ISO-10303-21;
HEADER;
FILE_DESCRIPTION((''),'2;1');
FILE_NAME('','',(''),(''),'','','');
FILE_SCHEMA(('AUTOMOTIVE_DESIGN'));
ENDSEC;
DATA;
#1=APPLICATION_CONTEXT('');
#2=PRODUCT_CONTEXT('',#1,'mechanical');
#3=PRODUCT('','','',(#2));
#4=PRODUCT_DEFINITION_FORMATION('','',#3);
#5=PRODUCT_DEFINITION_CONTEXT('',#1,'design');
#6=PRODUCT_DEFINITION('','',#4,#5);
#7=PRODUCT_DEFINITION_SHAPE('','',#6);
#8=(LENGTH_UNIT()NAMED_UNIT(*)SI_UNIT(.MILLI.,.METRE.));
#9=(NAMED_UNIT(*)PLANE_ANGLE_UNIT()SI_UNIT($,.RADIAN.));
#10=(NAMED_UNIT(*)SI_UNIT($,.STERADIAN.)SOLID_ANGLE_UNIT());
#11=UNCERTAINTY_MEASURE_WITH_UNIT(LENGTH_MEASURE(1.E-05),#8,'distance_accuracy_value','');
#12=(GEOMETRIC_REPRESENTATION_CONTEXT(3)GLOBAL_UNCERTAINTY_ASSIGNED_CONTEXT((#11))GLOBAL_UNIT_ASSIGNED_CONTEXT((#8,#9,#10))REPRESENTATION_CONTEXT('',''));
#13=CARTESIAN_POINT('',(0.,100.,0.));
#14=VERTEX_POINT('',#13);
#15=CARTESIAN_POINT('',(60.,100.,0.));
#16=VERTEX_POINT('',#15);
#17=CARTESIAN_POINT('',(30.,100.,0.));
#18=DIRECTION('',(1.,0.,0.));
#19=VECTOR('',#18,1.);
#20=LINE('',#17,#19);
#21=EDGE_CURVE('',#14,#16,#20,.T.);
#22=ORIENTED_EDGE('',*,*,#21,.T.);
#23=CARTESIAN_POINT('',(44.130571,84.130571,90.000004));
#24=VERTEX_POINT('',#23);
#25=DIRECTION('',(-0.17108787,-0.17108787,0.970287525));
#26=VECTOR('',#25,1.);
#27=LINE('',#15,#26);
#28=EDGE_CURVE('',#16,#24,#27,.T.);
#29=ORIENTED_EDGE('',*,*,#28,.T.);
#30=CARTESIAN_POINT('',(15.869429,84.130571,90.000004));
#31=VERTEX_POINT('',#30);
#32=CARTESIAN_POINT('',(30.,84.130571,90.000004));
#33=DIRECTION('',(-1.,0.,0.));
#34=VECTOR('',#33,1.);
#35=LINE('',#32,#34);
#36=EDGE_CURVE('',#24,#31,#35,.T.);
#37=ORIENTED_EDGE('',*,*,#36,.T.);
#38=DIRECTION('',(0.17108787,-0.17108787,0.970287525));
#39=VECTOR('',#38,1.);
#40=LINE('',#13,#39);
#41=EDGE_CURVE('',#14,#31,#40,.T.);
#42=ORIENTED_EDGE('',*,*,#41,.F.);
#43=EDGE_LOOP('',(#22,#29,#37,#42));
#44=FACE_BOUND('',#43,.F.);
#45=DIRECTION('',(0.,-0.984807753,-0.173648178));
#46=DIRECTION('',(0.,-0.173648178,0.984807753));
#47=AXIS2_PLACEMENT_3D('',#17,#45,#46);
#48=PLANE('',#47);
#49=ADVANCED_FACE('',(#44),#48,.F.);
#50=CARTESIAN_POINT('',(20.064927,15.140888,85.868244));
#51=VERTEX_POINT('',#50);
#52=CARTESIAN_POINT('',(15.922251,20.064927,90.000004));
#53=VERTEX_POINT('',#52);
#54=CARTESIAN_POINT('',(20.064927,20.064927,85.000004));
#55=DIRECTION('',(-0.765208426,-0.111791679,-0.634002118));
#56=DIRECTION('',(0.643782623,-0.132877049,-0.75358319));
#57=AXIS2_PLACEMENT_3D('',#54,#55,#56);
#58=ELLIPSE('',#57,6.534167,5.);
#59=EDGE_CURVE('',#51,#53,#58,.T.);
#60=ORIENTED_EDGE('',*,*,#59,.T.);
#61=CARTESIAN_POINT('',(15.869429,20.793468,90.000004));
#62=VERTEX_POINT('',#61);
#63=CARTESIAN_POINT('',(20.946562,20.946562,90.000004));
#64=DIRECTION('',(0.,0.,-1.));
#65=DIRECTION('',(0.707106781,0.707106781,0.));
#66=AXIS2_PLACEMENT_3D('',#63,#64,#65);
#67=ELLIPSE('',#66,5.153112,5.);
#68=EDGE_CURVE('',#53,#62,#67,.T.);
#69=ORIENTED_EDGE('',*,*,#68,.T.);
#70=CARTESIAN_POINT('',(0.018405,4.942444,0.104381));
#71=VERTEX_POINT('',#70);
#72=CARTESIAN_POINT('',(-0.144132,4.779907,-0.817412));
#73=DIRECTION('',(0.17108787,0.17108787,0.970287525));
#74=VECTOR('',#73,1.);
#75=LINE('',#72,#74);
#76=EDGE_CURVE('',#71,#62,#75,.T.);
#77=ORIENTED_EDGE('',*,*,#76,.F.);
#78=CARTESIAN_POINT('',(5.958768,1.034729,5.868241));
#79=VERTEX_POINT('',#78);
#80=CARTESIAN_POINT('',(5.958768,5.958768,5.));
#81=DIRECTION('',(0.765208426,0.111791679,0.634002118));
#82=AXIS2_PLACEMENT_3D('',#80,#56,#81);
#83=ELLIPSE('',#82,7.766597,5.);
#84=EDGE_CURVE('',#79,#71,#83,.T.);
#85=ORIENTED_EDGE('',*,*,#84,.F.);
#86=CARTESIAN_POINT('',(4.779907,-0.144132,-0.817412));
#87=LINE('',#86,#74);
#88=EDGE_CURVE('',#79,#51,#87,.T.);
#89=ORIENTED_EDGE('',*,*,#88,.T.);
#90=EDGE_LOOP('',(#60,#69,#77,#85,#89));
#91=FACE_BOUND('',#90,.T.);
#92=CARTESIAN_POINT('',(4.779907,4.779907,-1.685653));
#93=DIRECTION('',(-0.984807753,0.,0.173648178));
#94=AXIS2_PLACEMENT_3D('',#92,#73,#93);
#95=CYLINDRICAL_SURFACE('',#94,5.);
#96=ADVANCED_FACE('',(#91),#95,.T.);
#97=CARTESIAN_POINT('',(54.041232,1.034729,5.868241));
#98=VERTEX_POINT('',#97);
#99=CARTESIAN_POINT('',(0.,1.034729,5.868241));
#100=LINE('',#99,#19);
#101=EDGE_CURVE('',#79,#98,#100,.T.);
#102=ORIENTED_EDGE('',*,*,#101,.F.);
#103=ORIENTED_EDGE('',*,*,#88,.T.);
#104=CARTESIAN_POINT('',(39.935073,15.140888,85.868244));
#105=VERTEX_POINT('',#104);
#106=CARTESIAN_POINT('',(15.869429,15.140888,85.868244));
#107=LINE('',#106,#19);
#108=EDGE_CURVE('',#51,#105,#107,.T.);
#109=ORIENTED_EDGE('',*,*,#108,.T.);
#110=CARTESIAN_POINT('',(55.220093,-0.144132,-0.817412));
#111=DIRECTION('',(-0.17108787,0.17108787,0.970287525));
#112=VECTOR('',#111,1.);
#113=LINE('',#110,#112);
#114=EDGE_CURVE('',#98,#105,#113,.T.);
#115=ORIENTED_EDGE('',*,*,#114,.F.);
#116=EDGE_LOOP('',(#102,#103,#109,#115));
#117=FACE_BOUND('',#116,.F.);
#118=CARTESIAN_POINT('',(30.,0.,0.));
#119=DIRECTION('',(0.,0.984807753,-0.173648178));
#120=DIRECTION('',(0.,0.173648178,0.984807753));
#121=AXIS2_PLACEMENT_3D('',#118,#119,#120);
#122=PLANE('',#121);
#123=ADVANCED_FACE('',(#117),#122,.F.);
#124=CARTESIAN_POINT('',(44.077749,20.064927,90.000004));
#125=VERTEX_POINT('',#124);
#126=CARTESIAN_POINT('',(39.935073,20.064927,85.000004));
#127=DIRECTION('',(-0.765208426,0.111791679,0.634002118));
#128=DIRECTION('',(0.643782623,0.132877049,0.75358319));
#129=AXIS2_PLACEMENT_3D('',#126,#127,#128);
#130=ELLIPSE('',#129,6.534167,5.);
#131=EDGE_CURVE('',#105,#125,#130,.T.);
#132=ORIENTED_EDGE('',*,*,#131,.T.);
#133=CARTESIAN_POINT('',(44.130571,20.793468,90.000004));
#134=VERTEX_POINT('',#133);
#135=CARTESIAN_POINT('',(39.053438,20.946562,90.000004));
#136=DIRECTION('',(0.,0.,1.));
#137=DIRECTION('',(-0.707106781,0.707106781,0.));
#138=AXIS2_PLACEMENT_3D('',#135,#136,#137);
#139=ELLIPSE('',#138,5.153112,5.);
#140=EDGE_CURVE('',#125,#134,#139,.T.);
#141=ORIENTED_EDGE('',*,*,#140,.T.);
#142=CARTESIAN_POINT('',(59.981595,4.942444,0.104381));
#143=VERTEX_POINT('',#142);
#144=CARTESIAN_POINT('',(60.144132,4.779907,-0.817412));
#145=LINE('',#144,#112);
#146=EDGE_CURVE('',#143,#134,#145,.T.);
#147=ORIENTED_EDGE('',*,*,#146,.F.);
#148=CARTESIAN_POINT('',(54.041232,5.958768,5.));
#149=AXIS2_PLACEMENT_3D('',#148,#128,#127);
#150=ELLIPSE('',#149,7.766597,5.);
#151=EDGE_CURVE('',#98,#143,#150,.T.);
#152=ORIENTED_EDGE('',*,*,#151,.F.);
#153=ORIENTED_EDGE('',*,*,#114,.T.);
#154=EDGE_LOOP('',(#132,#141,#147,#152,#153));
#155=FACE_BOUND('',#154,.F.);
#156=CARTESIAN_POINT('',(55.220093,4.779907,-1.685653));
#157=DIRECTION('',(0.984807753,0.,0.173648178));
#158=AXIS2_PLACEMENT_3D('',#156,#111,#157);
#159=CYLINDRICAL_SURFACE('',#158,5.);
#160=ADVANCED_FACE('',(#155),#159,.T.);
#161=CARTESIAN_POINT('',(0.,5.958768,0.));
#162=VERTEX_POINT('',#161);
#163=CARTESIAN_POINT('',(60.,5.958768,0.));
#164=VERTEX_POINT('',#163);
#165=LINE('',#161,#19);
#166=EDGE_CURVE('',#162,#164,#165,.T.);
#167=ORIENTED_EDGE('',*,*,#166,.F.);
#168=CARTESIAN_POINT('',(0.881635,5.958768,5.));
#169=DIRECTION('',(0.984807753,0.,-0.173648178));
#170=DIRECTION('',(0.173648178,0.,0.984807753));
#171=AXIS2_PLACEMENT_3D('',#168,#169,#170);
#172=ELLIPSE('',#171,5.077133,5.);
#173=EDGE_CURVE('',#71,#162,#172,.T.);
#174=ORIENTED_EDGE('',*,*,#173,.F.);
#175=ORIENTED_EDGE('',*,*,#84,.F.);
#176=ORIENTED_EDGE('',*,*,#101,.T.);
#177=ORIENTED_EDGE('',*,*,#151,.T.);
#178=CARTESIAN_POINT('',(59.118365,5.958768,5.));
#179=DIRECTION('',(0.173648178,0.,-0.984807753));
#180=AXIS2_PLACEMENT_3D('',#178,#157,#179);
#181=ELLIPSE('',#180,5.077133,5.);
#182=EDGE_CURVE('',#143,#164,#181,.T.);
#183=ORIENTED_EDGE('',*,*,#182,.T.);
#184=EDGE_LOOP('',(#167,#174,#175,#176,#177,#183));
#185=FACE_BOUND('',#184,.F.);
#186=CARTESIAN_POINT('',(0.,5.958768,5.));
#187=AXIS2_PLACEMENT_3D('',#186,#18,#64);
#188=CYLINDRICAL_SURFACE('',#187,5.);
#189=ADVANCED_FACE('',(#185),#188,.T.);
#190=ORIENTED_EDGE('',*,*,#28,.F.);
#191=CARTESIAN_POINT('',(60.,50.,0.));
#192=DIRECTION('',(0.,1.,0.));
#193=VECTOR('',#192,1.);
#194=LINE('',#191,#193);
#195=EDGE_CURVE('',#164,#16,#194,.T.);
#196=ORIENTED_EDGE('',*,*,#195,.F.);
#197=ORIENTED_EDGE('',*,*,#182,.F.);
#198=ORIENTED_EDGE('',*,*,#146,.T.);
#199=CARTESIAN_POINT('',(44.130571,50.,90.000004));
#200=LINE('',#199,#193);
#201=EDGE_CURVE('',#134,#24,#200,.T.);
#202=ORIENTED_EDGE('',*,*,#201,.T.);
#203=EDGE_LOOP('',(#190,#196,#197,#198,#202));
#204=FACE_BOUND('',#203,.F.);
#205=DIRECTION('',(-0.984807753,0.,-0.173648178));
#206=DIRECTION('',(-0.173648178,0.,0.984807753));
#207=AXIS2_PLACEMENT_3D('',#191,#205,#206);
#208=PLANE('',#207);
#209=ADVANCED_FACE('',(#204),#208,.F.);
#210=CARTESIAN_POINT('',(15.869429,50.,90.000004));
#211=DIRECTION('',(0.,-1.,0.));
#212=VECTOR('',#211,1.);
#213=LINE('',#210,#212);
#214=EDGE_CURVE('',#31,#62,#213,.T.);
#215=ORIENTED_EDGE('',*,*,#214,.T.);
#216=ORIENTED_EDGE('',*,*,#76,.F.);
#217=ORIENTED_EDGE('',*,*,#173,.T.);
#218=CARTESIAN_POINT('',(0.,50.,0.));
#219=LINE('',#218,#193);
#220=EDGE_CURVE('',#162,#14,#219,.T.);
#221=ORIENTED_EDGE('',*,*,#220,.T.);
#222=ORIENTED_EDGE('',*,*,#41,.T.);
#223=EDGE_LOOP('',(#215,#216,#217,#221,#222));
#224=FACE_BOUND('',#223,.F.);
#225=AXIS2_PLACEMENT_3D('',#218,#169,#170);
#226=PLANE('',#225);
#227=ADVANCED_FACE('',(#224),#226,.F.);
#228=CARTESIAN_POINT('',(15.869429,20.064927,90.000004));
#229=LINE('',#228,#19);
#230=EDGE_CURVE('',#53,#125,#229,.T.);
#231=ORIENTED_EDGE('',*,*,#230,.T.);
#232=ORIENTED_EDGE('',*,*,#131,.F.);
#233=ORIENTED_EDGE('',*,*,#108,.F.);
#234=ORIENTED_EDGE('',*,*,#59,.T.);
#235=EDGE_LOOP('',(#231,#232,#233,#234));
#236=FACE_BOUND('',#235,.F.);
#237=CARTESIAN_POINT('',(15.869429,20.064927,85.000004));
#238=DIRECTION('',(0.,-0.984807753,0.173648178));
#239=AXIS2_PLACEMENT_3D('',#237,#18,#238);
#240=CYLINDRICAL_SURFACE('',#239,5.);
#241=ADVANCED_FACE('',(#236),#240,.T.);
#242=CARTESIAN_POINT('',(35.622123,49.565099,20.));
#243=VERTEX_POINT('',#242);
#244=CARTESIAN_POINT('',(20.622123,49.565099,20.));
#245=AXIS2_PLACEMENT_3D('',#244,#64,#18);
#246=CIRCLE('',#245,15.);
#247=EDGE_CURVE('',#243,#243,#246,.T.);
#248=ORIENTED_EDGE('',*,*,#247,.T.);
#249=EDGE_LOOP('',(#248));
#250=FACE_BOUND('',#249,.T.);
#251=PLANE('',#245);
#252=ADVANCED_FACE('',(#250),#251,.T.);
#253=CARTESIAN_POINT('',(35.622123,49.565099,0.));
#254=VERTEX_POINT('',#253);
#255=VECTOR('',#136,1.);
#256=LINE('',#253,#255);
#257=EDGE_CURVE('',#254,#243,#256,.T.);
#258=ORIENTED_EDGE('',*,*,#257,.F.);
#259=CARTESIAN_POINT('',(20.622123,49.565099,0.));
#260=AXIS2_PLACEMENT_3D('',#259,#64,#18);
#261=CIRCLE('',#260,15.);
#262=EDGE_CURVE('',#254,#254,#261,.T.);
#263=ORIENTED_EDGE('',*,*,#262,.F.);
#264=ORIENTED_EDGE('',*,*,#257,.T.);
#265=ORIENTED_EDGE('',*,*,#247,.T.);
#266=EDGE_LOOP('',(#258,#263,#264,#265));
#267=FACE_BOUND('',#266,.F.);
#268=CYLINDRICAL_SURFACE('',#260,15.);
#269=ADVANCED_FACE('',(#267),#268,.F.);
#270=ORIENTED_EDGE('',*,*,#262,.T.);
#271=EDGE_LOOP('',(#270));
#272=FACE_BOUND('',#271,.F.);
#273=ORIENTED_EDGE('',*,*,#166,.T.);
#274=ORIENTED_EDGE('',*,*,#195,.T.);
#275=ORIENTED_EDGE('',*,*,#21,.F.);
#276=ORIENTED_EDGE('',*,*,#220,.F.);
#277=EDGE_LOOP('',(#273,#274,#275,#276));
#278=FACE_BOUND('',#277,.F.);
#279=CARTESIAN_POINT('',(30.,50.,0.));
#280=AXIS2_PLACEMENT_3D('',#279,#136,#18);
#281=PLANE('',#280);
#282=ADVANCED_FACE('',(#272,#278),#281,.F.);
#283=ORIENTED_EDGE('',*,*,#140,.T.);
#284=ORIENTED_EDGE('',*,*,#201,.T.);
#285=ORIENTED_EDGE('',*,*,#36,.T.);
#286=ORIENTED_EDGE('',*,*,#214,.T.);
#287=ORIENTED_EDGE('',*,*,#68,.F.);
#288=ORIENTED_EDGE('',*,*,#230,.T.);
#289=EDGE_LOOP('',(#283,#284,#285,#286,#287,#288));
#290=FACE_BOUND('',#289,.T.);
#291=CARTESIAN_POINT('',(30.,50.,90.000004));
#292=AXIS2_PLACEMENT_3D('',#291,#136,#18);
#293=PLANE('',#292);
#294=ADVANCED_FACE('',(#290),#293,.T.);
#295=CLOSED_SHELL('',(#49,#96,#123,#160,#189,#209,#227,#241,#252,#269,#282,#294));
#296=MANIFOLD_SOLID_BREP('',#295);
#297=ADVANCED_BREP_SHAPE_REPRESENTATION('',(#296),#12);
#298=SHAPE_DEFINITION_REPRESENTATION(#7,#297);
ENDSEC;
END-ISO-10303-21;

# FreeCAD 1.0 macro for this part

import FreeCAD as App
import Part
import Sketcher

V = App.Vector
Q = App.Units.Quantity


def edges_at(feature, points):
    """Names of the edges that pass closest to the given points."""
    edges = feature.Shape.Edges
    near = lambda p: min(range(len(edges)), key=lambda i: edges[i].distToShape(Part.Vertex(*p))[0])
    return sorted({f"Edge{near(p) + 1}" for p in points})


def add_polygon(sketch, points):
    """Adds a closed chain of lines whose ends are joined by coincident constraints."""
    first, n = sketch.GeometryCount, len(points)
    for a, b in zip(points, points[1:] + points[:1]):
        sketch.addGeometry(Part.LineSegment(App.Vector(*a, 0), App.Vector(*b, 0)), False)
    for i in range(n):
        sketch.addConstraint(Sketcher.Constraint("Coincident", first + i, 2, first + (i + 1) % n, 1))

doc = App.newDocument("Part")
body = doc.addObject("PartDesign::Body", "Body")

sketch1 = body.newObject("Sketcher::SketchObject", "Sketch")
sketch1.AttachmentSupport = (doc.getObject("XY_Plane"), [""])
sketch1.MapMode = "FlatFace"
add_polygon(sketch1, [(0, 100), (0, 0), (60, 0), (60, 100)])
sketch1.addConstraint([
    Sketcher.Constraint("Vertical", 0),
    Sketcher.Constraint("Horizontal", 1),
    Sketcher.Constraint("Vertical", 2),
    Sketcher.Constraint("Horizontal", 3),
    Sketcher.Constraint("Coincident", 0, 2, -1, 1),
    Sketcher.Constraint("DistanceX", 1, 1, 1, 2, Q("60 mm")),
    Sketcher.Constraint("DistanceY", 0, 2, 0, 1, Q("100 mm")),
])
pad1 = body.newObject("PartDesign::Pad", "Pad")
pad1.Profile = sketch1
pad1.Length = 90.000004
pad1.TaperAngle = -10
doc.recompute()

fillet = body.newObject("PartDesign::Fillet", "Fillet")
fillet.Base = (pad1, edges_at(pad1, [
    (52.065, 7.935, 45),
    (7.935, 7.935, 45),
    (30, 0, 0),
    (30, 15.869, 90),
]))
fillet.Radius = 5

sketch2 = body.newObject("Sketcher::SketchObject", "Sketch001")
sketch2.AttachmentSupport = (doc.getObject("XY_Plane"), [""])
sketch2.MapMode = "FlatFace"
sketch2.addGeometry(Part.Circle(V(21, 50, 0), V(0, 0, 1), 15), False)
sketch2.addConstraint([
    Sketcher.Constraint("Diameter", 0, Q("30 mm")),
    Sketcher.Constraint("DistanceY", -1, 1, 0, 3, Q("49.565099 mm")),
    Sketcher.Constraint("DistanceX", -1, 1, 0, 3, Q("20.622123 mm")),
])
pocket1 = body.newObject("PartDesign::Pocket", "Pocket")
pocket1.Profile = sketch2
pocket1.Length = 20
pocket1.Reversed = True

doc.recompute()
